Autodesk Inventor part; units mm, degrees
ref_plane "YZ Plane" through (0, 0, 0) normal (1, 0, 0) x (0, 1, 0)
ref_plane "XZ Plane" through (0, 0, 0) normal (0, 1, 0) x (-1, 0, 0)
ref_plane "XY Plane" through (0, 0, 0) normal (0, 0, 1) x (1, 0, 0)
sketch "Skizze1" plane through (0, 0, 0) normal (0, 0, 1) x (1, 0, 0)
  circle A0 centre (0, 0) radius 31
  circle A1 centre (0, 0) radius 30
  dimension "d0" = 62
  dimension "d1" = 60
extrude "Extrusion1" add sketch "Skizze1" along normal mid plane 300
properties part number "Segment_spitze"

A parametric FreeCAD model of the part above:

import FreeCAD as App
import Part
import Sketcher
Q = App.Units.Quantity

doc = App.newDocument("Part")
params = doc.addObject("Spreadsheet::Sheet", "Params")
for row, (alias, value) in enumerate([
    ("sketch1_diameter", "62 mm"),
    ("sketch1_diameter2", "60 mm"),
    ("pad1_length", "300 mm"),
], start=1):
    params.set(f"A{row}", alias)
    params.set(f"B{row}", "=" + value)
    params.setAlias(f"B{row}", alias)

body = doc.addObject("PartDesign::Body", "Body")

# Sketch on XY plane
sketch1 = body.newObject("Sketcher::SketchObject", "Sketch")
sketch1.AttachmentSupport = (doc.getObject("XY_Plane"), [""])
sketch1.MapMode = "FlatFace"
sketch1.addGeometry(Part.Circle(App.Vector(0, 0, 0), App.Vector(0, 0, 1), 31), False)
sketch1.addGeometry(Part.Circle(App.Vector(0, 0, 0), App.Vector(0, 0, 1), 30), False)
sketch1.addConstraint(Sketcher.Constraint("Coincident", 0, 3, -1, 1))
sketch1.addConstraint(Sketcher.Constraint("Coincident", 1, 3, -1, 1))
sketch1.addConstraint(Sketcher.Constraint("Diameter", 0, Q("62 mm")))
sketch1.addConstraint(Sketcher.Constraint("Diameter", 1, Q("60 mm")))
sketch1.setExpression("Constraints[2]", "Params.sketch1_diameter")
sketch1.setExpression("Constraints[3]", "Params.sketch1_diameter2")
pad1 = body.newObject("PartDesign::Pad", "Pad")
pad1.Profile = sketch1
pad1.setExpression("Length", "Params.pad1_length")
pad1.Midplane = True

doc.recompute()
